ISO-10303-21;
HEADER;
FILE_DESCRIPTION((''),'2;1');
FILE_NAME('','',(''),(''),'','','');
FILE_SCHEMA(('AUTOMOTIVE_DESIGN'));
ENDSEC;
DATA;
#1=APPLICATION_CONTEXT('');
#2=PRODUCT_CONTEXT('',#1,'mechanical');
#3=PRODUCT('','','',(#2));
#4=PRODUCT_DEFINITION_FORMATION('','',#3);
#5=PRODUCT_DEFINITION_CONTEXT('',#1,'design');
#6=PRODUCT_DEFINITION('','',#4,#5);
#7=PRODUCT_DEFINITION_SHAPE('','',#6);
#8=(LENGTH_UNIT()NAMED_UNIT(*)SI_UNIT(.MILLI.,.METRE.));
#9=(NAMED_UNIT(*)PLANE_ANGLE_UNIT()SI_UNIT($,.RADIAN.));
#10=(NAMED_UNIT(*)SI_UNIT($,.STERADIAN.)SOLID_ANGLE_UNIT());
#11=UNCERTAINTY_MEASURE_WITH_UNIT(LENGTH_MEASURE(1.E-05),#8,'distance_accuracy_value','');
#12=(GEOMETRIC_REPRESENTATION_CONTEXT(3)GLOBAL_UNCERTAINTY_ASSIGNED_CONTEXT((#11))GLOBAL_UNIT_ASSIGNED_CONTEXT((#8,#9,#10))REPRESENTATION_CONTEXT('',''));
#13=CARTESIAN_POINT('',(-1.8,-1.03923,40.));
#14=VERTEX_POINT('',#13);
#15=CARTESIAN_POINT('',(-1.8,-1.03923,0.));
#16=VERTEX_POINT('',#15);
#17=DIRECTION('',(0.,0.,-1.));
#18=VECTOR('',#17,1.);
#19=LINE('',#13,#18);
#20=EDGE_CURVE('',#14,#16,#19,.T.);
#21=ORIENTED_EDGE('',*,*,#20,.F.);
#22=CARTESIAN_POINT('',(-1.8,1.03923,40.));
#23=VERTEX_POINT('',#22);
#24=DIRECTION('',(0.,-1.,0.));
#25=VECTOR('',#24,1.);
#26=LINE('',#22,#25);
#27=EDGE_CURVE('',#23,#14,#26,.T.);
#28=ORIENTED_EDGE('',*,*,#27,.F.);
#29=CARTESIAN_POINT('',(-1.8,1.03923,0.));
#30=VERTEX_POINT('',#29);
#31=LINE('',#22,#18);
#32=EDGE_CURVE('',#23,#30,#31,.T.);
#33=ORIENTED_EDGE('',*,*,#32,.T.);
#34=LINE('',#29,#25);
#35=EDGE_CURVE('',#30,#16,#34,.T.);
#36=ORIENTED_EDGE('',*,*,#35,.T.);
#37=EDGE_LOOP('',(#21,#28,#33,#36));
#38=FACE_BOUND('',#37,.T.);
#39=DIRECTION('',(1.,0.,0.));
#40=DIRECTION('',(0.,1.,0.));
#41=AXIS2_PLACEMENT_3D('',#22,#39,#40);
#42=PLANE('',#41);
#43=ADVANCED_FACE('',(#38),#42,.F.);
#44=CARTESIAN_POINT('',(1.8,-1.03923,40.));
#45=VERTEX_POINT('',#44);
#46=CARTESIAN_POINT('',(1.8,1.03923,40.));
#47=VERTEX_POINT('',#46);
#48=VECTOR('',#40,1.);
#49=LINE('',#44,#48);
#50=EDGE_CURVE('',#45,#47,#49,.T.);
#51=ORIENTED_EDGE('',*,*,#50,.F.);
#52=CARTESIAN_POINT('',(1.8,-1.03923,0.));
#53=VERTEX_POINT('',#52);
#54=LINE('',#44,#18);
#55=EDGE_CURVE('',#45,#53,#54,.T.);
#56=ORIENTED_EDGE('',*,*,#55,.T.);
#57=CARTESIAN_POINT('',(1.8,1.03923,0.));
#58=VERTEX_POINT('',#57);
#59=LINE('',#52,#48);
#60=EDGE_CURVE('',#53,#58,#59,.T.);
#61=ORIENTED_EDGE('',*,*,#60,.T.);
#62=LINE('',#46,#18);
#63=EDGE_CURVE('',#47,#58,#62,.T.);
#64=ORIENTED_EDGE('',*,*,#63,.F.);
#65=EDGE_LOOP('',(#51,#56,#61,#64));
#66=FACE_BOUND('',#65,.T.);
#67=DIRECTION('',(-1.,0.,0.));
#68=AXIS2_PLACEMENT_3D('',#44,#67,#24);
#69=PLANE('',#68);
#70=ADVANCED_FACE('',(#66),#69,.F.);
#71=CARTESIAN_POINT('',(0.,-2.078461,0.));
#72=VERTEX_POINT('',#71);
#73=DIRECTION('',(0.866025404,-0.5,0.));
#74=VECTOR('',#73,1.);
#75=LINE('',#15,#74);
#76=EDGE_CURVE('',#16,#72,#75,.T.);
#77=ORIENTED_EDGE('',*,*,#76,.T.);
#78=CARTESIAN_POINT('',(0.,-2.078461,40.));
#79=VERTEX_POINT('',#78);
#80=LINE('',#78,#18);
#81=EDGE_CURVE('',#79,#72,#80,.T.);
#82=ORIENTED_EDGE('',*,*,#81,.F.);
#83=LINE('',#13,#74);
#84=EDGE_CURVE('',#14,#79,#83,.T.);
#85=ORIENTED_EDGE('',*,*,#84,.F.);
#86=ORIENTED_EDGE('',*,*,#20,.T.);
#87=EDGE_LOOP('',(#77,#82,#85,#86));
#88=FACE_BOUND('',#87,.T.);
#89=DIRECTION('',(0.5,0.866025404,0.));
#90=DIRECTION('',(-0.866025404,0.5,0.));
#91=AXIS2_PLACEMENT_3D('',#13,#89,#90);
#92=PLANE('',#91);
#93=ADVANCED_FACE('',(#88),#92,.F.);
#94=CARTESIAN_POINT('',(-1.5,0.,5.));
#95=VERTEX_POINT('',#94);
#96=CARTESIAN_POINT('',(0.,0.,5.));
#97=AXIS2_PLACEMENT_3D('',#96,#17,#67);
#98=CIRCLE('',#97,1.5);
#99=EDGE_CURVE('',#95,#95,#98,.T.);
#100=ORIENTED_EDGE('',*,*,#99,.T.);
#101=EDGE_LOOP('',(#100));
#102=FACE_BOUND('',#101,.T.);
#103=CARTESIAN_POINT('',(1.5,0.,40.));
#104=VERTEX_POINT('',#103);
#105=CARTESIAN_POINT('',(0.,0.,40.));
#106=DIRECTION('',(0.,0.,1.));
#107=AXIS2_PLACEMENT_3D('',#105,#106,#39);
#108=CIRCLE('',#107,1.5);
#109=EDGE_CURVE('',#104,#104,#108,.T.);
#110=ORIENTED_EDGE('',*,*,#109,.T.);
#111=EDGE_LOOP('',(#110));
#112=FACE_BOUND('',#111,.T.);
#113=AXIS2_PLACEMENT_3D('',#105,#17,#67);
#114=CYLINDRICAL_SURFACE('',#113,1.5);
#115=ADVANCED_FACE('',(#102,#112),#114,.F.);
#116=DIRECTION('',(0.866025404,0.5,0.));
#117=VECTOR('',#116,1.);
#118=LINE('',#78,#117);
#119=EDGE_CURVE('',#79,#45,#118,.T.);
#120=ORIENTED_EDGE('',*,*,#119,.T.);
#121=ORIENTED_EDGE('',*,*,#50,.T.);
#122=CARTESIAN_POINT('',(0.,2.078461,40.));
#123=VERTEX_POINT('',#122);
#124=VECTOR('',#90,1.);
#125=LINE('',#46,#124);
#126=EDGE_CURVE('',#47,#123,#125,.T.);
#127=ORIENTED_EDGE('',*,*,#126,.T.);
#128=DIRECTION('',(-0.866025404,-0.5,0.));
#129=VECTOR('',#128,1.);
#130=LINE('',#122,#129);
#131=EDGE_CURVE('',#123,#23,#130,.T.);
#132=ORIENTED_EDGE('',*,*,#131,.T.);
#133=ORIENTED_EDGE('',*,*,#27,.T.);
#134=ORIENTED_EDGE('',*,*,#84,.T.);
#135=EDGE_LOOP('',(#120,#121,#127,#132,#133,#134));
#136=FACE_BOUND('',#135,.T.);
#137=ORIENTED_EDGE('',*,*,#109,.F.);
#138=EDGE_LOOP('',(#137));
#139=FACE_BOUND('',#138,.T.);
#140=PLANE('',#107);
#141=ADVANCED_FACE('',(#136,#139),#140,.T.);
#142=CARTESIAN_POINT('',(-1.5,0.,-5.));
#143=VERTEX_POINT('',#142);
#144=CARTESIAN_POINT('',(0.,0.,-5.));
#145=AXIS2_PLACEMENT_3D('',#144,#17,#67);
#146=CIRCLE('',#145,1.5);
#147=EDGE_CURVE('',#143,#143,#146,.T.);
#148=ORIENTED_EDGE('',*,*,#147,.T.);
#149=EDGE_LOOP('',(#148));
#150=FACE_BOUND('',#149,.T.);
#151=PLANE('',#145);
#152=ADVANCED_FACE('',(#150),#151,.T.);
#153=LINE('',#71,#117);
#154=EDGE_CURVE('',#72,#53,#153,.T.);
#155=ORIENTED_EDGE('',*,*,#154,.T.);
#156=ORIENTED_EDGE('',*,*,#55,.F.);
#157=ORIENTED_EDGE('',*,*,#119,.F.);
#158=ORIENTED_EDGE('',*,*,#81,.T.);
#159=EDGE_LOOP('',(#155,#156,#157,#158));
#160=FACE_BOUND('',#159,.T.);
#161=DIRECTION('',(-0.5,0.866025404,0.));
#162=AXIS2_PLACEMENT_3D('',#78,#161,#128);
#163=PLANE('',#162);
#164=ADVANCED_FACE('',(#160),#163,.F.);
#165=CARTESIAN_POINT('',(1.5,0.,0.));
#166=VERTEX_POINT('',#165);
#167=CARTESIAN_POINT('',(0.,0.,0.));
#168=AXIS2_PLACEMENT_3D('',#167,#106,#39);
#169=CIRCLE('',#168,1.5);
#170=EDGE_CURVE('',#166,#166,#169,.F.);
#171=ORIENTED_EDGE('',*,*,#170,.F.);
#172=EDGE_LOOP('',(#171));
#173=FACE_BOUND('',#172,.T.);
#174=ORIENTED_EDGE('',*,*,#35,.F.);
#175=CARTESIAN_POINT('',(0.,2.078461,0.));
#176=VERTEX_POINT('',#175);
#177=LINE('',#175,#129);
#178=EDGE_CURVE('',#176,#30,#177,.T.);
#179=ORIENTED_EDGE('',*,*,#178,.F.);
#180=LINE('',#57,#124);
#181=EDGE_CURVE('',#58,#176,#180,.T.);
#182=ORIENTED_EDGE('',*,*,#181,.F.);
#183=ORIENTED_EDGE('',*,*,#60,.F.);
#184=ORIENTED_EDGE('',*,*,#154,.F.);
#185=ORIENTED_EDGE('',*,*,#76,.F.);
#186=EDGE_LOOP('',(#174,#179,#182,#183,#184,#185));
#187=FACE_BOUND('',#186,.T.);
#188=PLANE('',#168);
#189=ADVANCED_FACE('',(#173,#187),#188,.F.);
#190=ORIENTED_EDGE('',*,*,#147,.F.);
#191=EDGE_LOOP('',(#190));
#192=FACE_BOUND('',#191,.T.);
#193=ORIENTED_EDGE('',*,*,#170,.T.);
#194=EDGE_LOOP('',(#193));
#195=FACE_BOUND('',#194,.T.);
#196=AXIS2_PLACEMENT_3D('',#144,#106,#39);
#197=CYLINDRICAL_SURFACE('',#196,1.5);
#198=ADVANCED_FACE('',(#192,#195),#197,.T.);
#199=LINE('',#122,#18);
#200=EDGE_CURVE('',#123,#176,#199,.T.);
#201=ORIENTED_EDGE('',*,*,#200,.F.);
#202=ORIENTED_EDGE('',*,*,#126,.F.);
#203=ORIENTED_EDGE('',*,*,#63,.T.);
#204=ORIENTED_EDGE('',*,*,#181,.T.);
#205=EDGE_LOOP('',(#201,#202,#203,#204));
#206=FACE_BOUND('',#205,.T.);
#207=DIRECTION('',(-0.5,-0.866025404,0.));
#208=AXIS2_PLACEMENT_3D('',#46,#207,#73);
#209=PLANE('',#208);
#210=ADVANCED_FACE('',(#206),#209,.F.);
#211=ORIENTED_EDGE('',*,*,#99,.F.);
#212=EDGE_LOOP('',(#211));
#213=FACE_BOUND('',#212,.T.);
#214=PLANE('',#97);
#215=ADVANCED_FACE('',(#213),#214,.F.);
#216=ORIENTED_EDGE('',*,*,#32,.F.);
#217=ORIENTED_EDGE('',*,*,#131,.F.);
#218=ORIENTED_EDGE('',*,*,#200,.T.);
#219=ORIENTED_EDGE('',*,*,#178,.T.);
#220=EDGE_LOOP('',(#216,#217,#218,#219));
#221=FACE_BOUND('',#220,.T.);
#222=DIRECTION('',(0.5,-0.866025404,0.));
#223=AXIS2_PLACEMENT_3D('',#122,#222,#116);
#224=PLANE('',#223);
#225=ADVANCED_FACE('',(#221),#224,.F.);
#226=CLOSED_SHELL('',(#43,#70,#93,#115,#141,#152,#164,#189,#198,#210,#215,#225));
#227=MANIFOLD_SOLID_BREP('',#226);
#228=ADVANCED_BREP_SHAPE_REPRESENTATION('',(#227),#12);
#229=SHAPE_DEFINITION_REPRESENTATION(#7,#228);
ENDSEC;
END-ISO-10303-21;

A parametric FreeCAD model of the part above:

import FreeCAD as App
import Part
import Sketcher
from FreeCAD import Vector
Q = App.Units.Quantity


def add_polygon(sketch, points):
    """Adds a closed chain of lines whose ends are joined by coincident constraints."""
    first, n = sketch.GeometryCount, len(points)
    for a, b in zip(points, points[1:] + points[:1]):
        sketch.addGeometry(Part.LineSegment(App.Vector(*a, 0), App.Vector(*b, 0)), False)
    for i in range(n):
        sketch.addConstraint(Sketcher.Constraint("Coincident", first + i, 2, first + (i + 1) % n, 1))

doc = App.newDocument("Part")
params = doc.addObject("Spreadsheet::Sheet", "Params")
for row, (alias, value) in enumerate([
    ("sketch1_diameter", "3 mm"),
    ("pad1_length", "40 mm"),
    ("sketch2_diameter", "3 mm"),
    ("pad2_length", "10 mm"),
], start=1):
    params.set(f"A{row}", alias)
    params.set(f"B{row}", "=" + value)
    params.setAlias(f"B{row}", alias)

body = doc.addObject("PartDesign::Body", "Body")

sketch1 = body.newObject("Sketcher::SketchObject", "Sketch")
sketch1.AttachmentSupport = (doc.getObject("XY_Plane"), [""])
sketch1.MapMode = "FlatFace"
add_polygon(sketch1, [(0, 2.078461), (-1.8, 1.03923), (-1.8, -1.03923), (0, -2.078461), (1.8, -1.03923), (1.8, 1.03923)])
sketch1.addGeometry(Part.Circle(Vector(0, 0, 0), Vector(0, 0, 1), 1.5), False)
sketch1.addConstraint(Sketcher.Constraint("Vertical", 1))
sketch1.addConstraint(Sketcher.Constraint("Vertical", 4))
sketch1.addConstraint(Sketcher.Constraint("Coincident", 6, 3, -1, 1))
sketch1.addConstraint(Sketcher.Constraint("Symmetric", 0, 2, 3, 2, -1, 1))
sketch1.addConstraint(Sketcher.Constraint("Symmetric", 2, 2, 5, 2, -1, 1))
sketch1.addConstraint(Sketcher.Constraint("PointOnObject", 2, 2, -2))
sketch1.addConstraint(Sketcher.Constraint("Parallel", 2, 5))
sketch1.addConstraint(Sketcher.Constraint("Horizontal", 1, 2, 3, 2))
sketch1.addConstraint(Sketcher.Constraint("Diameter", 6, Q("3 mm")))
sketch1.addConstraint(Sketcher.Constraint("Angle", 0, Q("-150 deg")))
sketch1.addConstraint(Sketcher.Constraint("DistanceX", 0, 2, -1, 1, Q("1.8 mm")))
sketch1.addConstraint(Sketcher.Constraint("DistanceY", 1, 2, 1, 1, Q("2.078461 mm")))
sketch1.setExpression("Constraints[14]", "Params.sketch1_diameter")
pad1 = body.newObject("PartDesign::Pad", "Pad")
pad1.Profile = sketch1
pad1.setExpression("Length", "Params.pad1_length")

sketch2 = body.newObject("Sketcher::SketchObject", "Sketch001")
sketch2.AttachmentSupport = (doc.getObject("XY_Plane"), [""])
sketch2.MapMode = "FlatFace"
sketch2.addGeometry(Part.Circle(Vector(0, 0, 0), Vector(0, 0, 1), 1.5), False)
sketch2.addConstraint(Sketcher.Constraint("Coincident", 0, 3, -1, 1))
sketch2.addConstraint(Sketcher.Constraint("Diameter", 0, Q("3 mm")))
sketch2.setExpression("Constraints[1]", "Params.sketch2_diameter")
pad2 = body.newObject("PartDesign::Pad", "Pad001")
pad2.Profile = sketch2
pad2.setExpression("Length", "Params.pad2_length")
pad2.Midplane = True

doc.recompute()
